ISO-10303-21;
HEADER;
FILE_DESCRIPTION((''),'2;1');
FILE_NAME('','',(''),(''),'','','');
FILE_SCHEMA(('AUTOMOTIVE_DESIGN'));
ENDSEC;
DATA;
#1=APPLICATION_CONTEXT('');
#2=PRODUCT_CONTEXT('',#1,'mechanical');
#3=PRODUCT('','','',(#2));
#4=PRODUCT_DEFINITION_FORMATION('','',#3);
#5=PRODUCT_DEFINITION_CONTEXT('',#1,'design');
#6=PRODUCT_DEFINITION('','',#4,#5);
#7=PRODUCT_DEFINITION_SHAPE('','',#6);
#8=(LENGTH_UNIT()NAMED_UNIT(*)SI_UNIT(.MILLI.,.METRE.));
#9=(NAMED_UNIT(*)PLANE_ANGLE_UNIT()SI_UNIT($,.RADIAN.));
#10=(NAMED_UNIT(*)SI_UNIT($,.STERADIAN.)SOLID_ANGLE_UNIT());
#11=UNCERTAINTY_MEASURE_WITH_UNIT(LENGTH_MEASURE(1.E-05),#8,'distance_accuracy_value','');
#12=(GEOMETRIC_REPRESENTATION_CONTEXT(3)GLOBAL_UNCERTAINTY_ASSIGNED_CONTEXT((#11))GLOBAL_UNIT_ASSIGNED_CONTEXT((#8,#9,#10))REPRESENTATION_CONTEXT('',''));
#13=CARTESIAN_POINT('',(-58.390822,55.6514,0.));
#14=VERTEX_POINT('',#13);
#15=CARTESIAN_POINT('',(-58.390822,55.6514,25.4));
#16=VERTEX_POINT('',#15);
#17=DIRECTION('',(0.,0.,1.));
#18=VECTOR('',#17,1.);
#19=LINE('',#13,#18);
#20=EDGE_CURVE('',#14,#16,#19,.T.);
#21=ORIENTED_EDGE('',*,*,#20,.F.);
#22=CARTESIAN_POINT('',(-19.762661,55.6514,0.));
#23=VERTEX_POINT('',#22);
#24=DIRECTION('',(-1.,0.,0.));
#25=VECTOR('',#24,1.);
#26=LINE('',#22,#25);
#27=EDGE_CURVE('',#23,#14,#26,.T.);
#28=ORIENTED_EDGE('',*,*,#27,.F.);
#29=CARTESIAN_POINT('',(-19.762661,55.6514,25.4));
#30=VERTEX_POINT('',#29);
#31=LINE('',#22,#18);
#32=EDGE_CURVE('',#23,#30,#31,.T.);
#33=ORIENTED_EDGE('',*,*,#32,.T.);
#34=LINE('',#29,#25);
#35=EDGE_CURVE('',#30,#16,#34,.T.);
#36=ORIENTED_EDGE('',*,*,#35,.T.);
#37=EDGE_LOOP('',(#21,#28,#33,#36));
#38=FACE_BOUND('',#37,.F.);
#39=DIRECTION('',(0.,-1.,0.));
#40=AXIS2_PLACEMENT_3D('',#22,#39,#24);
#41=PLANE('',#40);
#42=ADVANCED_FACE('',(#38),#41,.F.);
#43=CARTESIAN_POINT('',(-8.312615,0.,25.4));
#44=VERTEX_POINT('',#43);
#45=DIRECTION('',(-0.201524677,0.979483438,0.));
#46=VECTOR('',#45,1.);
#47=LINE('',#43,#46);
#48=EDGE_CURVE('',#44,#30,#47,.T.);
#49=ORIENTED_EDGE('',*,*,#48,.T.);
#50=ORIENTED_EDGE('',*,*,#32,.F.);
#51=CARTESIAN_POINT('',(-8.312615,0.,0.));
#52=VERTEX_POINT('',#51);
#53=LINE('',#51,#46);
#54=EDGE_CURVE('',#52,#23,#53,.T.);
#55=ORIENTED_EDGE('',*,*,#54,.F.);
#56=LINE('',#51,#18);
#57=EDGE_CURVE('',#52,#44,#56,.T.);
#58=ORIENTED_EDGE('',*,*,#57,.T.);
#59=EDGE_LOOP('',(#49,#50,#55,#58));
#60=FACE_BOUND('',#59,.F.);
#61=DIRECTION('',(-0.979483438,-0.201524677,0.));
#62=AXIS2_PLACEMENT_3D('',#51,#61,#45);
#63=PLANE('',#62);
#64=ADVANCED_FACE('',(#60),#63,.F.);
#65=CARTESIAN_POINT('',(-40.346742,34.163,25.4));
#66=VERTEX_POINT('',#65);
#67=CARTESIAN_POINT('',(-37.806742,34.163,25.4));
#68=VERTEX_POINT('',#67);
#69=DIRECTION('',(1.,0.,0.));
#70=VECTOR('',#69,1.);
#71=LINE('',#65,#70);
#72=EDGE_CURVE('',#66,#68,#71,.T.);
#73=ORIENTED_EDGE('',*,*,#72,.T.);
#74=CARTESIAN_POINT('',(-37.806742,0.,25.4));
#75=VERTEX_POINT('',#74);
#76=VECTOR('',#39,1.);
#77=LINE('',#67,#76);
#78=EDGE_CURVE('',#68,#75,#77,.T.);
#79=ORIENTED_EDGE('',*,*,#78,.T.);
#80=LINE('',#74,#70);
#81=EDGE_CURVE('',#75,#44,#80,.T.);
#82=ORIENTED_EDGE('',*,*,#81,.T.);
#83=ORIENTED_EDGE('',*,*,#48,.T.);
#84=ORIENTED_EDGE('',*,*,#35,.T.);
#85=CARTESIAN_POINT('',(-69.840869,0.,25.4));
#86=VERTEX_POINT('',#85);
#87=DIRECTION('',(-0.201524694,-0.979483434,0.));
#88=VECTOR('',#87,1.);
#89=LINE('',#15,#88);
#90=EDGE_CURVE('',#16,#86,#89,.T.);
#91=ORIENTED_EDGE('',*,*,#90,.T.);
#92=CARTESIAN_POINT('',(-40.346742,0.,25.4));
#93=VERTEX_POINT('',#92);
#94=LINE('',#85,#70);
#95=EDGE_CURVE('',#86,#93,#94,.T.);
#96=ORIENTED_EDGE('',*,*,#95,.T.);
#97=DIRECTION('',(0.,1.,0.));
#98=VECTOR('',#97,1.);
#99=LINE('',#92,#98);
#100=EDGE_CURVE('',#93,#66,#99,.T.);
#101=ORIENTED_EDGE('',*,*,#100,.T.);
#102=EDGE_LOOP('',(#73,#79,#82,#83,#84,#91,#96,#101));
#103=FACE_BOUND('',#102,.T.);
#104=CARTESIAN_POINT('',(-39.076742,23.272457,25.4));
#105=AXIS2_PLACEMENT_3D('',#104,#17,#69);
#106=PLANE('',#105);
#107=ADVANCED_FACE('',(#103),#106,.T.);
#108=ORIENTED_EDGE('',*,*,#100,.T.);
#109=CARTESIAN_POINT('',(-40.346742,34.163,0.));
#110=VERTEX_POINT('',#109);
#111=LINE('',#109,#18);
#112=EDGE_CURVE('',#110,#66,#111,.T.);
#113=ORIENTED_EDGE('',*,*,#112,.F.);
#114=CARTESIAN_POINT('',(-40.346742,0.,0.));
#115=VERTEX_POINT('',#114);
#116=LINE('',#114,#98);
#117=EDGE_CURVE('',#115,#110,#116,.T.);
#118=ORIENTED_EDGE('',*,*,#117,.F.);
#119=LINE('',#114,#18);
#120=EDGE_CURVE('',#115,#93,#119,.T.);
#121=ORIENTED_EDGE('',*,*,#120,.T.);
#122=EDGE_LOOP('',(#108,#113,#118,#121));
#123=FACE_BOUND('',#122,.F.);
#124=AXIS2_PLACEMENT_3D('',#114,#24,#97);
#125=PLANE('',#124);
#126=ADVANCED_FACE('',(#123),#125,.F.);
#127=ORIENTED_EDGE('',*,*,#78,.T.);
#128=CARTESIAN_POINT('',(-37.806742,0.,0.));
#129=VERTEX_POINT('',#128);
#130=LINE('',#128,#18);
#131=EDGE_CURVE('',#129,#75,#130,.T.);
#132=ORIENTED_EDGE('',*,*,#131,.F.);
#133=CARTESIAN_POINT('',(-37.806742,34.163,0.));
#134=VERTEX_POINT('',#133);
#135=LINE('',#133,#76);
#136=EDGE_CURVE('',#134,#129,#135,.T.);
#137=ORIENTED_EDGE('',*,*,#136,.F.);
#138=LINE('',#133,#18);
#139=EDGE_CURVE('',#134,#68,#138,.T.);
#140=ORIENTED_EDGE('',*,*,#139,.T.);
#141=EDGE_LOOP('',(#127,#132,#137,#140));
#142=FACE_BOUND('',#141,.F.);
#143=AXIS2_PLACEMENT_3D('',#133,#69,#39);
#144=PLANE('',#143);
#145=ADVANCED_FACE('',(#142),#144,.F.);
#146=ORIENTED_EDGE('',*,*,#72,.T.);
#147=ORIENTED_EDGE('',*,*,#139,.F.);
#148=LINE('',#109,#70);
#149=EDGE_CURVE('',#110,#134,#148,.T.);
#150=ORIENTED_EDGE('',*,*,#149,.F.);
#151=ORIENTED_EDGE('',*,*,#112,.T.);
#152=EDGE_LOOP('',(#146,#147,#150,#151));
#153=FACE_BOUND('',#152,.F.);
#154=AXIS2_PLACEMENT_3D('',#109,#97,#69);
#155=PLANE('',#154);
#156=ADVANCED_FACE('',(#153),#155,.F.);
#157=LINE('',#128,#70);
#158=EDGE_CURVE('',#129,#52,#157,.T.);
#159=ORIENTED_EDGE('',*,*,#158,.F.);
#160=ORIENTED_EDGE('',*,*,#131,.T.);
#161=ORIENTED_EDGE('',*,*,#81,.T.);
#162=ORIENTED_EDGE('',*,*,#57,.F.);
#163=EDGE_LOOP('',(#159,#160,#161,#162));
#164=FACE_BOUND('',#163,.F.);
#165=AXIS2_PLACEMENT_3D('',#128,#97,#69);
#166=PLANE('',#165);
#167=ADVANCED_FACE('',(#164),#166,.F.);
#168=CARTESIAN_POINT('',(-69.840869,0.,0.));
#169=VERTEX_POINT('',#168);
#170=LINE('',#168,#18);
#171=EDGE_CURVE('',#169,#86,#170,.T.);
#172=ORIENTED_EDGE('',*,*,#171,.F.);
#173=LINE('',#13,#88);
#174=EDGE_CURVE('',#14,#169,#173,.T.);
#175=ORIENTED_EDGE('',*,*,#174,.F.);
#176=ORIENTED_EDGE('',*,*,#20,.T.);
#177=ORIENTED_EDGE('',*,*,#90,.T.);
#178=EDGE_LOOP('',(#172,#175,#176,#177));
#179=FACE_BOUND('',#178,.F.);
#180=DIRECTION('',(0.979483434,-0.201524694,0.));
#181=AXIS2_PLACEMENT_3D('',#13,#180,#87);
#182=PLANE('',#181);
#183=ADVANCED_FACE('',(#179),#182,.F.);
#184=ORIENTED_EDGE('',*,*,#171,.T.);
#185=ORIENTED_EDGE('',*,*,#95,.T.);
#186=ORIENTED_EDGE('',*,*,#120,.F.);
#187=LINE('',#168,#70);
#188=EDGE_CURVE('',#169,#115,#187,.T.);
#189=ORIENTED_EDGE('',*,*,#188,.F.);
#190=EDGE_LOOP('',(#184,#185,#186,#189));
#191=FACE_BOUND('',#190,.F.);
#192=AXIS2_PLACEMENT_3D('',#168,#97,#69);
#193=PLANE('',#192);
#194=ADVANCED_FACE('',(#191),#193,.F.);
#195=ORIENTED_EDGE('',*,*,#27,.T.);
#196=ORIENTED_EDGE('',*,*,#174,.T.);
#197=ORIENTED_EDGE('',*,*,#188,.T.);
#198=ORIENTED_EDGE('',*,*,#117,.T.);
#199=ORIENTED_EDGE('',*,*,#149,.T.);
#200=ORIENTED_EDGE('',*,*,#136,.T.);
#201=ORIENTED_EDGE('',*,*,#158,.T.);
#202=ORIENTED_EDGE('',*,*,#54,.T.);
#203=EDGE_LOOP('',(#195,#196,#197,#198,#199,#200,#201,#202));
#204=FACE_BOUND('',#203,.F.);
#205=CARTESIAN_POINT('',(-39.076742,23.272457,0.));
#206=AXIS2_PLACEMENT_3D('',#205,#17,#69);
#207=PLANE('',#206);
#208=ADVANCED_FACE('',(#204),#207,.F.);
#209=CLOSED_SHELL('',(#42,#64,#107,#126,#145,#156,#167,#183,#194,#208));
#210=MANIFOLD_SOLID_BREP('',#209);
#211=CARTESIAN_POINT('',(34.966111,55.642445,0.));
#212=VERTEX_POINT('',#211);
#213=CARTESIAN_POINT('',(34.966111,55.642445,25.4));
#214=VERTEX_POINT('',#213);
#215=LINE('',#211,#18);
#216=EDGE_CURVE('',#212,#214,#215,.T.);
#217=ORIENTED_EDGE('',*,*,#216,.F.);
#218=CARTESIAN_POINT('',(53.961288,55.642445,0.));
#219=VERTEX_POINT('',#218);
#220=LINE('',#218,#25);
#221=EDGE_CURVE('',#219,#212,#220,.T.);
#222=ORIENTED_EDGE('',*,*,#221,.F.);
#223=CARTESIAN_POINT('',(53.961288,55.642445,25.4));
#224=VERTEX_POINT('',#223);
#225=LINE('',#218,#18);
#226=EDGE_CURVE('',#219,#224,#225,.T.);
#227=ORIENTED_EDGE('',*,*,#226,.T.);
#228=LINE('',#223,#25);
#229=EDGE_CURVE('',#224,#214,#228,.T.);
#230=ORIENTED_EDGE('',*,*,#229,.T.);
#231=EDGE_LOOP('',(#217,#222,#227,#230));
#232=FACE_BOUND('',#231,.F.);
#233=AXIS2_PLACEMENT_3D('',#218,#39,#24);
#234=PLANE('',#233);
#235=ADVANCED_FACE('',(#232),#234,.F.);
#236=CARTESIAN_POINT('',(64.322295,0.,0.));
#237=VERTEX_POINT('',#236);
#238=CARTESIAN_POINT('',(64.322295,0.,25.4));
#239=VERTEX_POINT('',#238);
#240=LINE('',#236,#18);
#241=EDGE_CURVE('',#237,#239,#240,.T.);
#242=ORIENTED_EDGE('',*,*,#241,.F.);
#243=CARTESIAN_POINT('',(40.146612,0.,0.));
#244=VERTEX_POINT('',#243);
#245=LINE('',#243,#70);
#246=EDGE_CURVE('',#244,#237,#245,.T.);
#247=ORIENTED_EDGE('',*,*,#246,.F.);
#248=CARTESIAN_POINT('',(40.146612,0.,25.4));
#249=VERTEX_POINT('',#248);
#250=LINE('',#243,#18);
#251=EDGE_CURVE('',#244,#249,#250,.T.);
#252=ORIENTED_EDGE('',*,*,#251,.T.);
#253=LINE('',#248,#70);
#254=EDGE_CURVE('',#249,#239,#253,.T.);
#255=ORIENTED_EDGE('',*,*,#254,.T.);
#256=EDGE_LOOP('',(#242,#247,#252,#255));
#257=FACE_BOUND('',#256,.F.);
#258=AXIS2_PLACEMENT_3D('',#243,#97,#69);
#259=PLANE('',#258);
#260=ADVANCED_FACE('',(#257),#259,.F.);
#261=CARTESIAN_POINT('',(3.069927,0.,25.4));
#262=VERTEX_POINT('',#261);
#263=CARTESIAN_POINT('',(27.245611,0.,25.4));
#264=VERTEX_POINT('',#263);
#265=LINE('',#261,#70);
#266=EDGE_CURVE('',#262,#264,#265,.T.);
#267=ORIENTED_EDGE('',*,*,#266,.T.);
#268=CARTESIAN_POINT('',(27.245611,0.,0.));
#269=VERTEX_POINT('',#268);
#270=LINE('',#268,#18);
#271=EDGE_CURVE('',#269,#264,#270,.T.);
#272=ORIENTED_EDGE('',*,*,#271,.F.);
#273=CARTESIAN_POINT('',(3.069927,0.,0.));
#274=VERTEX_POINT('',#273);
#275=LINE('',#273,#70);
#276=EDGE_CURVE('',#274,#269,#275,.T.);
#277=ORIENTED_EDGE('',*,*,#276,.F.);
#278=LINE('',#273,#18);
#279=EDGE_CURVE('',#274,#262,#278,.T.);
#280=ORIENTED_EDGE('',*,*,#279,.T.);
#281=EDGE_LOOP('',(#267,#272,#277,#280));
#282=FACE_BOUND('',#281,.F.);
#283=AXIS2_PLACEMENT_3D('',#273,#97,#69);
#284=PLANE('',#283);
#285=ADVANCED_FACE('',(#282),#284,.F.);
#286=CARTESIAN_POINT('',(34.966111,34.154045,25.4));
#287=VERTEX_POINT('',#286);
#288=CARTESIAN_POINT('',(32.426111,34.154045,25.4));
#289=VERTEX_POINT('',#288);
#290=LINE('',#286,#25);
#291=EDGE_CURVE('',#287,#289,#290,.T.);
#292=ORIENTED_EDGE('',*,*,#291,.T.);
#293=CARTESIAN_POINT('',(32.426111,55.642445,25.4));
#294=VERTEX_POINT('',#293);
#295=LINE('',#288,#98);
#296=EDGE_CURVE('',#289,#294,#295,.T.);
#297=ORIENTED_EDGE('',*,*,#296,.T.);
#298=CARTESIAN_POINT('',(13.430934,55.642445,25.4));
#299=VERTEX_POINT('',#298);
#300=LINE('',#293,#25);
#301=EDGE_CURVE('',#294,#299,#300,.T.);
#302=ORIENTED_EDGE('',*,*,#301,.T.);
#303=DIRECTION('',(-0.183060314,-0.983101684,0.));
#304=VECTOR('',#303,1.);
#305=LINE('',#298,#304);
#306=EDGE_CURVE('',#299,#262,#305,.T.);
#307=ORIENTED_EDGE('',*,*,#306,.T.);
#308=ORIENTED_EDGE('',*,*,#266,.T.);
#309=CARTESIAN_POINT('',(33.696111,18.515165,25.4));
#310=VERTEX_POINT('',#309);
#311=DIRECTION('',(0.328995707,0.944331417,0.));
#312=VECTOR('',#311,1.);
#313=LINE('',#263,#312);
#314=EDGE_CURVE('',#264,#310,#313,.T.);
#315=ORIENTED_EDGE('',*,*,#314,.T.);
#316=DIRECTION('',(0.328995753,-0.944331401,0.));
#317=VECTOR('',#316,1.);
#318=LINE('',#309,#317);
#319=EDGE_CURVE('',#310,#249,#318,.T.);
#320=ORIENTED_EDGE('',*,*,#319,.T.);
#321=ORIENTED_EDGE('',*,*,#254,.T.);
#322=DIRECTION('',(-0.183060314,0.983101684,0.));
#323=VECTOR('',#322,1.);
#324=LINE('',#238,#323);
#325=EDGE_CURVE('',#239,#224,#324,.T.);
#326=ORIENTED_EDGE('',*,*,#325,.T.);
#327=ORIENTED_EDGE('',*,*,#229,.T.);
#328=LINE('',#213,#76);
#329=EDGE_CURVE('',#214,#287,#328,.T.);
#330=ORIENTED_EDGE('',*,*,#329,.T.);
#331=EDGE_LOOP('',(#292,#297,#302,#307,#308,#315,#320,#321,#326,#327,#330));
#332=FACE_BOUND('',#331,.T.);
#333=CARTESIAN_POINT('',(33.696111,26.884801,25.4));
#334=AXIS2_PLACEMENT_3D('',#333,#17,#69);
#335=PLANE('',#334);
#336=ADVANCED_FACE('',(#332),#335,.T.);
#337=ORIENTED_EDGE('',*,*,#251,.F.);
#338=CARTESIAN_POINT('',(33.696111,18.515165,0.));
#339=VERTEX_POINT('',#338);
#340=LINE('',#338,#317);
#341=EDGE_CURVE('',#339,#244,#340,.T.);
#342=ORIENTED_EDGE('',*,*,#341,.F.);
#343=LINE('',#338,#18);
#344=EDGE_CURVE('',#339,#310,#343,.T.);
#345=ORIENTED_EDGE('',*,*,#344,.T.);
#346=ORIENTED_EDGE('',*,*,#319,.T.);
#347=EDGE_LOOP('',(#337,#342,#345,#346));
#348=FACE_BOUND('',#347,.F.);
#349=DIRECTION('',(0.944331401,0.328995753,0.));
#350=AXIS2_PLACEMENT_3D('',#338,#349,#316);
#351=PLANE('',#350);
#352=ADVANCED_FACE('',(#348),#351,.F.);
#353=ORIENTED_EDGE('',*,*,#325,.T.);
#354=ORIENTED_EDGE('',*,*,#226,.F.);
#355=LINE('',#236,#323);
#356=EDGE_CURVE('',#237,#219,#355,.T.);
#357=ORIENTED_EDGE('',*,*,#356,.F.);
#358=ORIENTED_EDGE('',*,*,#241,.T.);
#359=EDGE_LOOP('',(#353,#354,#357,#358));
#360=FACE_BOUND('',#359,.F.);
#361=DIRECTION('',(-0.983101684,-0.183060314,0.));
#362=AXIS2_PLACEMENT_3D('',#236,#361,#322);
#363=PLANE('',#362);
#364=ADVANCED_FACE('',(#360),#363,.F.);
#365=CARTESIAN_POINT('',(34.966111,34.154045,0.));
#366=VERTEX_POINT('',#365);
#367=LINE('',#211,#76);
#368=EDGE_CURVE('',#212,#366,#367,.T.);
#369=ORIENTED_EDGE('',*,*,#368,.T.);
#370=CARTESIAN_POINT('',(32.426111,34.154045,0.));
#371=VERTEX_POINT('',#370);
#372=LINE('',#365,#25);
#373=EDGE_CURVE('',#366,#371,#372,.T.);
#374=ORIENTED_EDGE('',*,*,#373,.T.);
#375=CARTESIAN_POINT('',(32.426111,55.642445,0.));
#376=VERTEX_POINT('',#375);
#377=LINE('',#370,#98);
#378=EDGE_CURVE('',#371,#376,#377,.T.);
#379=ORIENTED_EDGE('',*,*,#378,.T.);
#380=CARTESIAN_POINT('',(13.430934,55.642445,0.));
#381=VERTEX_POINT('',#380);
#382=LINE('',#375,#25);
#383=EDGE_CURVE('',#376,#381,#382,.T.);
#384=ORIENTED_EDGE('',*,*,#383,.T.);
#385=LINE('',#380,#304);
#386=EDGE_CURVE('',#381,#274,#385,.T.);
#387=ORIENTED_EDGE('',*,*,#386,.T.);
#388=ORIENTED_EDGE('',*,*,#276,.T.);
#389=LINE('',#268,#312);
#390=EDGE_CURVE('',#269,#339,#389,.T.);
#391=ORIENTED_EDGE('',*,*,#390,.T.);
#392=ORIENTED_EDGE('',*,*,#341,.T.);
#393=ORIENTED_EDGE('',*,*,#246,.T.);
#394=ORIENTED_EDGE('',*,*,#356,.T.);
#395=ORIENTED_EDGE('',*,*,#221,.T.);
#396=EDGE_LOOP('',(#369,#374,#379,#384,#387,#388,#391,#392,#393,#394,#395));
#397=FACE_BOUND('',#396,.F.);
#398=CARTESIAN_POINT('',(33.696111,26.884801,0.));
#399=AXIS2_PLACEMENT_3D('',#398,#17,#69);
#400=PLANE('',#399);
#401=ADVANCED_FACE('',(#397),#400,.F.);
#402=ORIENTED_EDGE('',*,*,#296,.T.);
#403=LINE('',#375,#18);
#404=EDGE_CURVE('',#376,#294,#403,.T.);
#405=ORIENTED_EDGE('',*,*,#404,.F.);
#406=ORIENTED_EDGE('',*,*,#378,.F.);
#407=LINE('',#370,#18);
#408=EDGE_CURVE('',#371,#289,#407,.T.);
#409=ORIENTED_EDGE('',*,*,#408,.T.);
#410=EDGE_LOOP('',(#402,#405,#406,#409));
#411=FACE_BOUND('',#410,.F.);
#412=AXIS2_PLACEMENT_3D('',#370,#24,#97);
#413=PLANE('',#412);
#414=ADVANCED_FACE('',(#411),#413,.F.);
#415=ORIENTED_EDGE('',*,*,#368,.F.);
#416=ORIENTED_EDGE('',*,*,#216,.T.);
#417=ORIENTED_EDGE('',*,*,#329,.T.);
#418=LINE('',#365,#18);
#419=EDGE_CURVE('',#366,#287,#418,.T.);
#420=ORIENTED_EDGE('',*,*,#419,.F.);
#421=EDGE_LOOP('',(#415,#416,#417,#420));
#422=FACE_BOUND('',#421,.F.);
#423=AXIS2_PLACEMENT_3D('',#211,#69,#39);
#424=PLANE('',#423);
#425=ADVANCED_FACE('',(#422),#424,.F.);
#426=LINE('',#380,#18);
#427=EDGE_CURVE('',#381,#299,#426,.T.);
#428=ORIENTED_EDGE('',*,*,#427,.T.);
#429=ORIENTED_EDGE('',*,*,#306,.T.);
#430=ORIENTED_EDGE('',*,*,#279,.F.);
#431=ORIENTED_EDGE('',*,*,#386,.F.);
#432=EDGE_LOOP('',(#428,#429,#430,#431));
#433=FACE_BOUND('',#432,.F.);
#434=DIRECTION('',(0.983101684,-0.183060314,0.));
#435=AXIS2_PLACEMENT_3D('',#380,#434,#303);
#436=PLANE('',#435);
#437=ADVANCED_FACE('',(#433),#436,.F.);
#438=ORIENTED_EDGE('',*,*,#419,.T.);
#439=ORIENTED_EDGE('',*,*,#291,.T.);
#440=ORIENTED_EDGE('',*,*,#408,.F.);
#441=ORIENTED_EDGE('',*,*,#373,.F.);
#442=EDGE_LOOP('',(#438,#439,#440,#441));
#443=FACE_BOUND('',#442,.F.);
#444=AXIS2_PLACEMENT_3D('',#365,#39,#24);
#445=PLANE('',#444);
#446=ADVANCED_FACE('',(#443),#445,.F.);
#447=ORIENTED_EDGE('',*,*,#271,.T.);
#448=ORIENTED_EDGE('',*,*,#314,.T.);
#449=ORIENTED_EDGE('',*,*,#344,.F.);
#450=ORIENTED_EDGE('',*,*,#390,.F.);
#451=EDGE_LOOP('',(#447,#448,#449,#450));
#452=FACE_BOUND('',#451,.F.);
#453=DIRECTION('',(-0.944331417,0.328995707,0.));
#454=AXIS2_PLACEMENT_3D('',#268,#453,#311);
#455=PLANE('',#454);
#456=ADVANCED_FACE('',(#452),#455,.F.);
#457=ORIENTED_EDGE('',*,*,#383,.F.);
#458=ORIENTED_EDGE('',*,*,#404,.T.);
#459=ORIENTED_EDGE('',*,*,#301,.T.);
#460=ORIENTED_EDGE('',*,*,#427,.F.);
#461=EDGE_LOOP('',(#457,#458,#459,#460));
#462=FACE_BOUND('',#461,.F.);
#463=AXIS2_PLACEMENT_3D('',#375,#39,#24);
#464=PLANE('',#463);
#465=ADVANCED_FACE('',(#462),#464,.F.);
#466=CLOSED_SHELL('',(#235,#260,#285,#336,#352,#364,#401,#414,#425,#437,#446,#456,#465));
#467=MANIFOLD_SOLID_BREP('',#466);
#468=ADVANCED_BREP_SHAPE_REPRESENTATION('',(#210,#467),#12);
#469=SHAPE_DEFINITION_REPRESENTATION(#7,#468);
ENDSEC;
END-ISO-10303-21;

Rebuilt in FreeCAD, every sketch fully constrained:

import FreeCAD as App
import Part
import Sketcher

V = App.Vector
Q = App.Units.Quantity


def add_polygon(sketch, points):
    """Adds a closed chain of lines whose ends are joined by coincident constraints."""
    first, n = sketch.GeometryCount, len(points)
    for a, b in zip(points, points[1:] + points[:1]):
        sketch.addGeometry(Part.LineSegment(App.Vector(*a, 0), App.Vector(*b, 0)), False)
    for i in range(n):
        sketch.addConstraint(Sketcher.Constraint("Coincident", first + i, 2, first + (i + 1) % n, 1))

doc = App.newDocument("Part")
body = doc.addObject("PartDesign::Body", "Body")
body.AllowCompound = True

sketch1 = body.newObject("Sketcher::SketchObject", "Sketch")
sketch1.AttachmentSupport = (doc.getObject("XY_Plane"), [""])
sketch1.MapMode = "FlatFace"
add_polygon(sketch1, [(-8.3, 0), (-19.8, 55.7), (-58.4, 55.7), (-69.8, 0), (-40.3, 0), (-40.3, 34.2), (-37.8, 34.2), (-37.8, 0)])
add_polygon(sketch1, [(13.4, 55.6), (3.1, 0), (27.2, 0), (33.7, 18.5), (40.1, 0), (64.3, 0), (54, 55.6), (35, 55.6), (35, 34.2), (32.4, 34.2), (32.4, 55.6)])
sketch1.addConstraint([
    Sketcher.Constraint("Horizontal", 1),
    Sketcher.Constraint("Horizontal", 3),
    Sketcher.Constraint("Vertical", 4),
    Sketcher.Constraint("Horizontal", 5),
    Sketcher.Constraint("Vertical", 6),
    Sketcher.Constraint("Horizontal", 7),
    Sketcher.Constraint("Horizontal", 9),
    Sketcher.Constraint("Horizontal", 12),
    Sketcher.Constraint("Horizontal", 14),
    Sketcher.Constraint("Vertical", 15),
    Sketcher.Constraint("Horizontal", 16),
    Sketcher.Constraint("Vertical", 17),
    Sketcher.Constraint("Horizontal", 18),
    Sketcher.Constraint("PointOnObject", 2, 2, -1),
    Sketcher.Constraint("PointOnObject", 6, 2, -1),
    Sketcher.Constraint("PointOnObject", 8, 2, -1),
    Sketcher.Constraint("PointOnObject", 11, 2, -1),
    Sketcher.Constraint("Horizontal", 14, 2, 17, 2),
    Sketcher.Constraint("Equal", 3, 7),
    Sketcher.Constraint("Equal", 9, 12),
    Sketcher.Constraint("Equal", 5, 16),
    Sketcher.Constraint("Equal", 14, 18),
    Sketcher.Constraint("Equal", 0, 2),
    Sketcher.Constraint("Equal", 10, 11),
    Sketcher.Constraint("Equal", 8, 13),
    Sketcher.Constraint("DistanceX", 5, 1, 5, 2, Q("0.1 in")),
    Sketcher.Constraint("DistanceY", 4, 1, 4, 2, Q("1.345 in")),
    Sketcher.Constraint("DistanceY", 15, 2, 15, 1, Q("0.846 in")),
    Sketcher.Constraint("DistanceY", -1, 1, 0, 2, Q("2.191 in")),
    Sketcher.Constraint("DistanceX", 1, 2, 1, 1, 38.628161),
    Sketcher.Constraint("DistanceX", 9, 2, 10, 2, 6.4505),
    Sketcher.Constraint("Distance", 0, 56.817091),
    Sketcher.Constraint("Distance", 8, 56.598871),
    Sketcher.Constraint("Distance", 10, 19.606639),
    Sketcher.Constraint("DistanceX", 9, 1, 9, 2, 24.175684),
    Sketcher.Constraint("DistanceX", 14, 2, 14, 1, 18.995177),
    Sketcher.Constraint("DistanceX", 0, 2, -1, 1, 19.762661),
    Sketcher.Constraint("DistanceX", -1, 1, 9, 2, 27.245611),
])
pad1 = body.newObject("PartDesign::Pad", "Pad")
pad1.Profile = sketch1
pad1.Length = Q("1 in")

doc.recompute()
